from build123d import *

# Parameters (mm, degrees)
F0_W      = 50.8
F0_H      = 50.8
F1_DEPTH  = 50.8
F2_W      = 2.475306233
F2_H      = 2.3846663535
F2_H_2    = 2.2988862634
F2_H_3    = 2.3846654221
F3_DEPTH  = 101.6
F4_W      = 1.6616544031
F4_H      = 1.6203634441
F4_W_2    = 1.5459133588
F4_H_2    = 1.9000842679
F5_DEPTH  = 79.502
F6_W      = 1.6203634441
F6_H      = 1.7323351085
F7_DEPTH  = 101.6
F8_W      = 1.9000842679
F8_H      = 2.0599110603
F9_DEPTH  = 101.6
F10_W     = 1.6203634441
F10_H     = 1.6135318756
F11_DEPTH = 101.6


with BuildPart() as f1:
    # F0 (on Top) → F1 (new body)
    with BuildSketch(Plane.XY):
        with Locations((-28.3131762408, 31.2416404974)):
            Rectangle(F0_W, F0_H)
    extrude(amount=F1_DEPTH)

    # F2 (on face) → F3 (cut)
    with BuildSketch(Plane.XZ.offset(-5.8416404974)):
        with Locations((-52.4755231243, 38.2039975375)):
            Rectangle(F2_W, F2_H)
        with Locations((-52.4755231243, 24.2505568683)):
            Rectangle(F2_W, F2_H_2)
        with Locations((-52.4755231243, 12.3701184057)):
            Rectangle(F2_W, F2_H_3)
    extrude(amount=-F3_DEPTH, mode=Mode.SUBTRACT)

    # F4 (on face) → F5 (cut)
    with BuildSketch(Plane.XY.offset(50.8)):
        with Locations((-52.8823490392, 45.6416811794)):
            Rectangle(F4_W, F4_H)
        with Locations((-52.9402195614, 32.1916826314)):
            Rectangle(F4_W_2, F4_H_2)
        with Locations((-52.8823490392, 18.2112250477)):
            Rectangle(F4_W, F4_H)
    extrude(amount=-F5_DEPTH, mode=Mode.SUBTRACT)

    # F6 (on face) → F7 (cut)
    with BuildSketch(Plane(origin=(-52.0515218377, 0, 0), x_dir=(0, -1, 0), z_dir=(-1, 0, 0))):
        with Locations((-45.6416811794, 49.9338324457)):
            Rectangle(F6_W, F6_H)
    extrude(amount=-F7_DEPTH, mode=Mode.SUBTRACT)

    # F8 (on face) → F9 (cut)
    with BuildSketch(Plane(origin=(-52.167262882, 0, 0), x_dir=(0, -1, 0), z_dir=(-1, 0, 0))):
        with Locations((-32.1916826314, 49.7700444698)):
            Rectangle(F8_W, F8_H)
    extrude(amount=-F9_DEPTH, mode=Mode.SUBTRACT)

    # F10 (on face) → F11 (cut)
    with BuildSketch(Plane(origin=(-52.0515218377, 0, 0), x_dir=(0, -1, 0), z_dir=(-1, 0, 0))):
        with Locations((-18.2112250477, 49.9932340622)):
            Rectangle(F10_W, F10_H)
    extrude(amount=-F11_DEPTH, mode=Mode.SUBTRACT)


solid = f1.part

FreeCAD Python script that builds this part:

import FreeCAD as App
import Part
import Sketcher
from FreeCAD import Vector
Q = App.Units.Quantity

doc = App.newDocument("Part")
params = doc.addObject("Spreadsheet::Sheet", "Params")
for row, (alias, value) in enumerate([
    ("sketch1_width", "2 in"),
    ("pad1_length", "2 in"),
    ("pocket1_length", "4 in"),
    ("pocket2_length", "3.13 in"),
    ("pocket3_length", "4 in"),
    ("pocket4_length", "4 in"),
    ("pocket5_length", "4 in"),
], start=1):
    params.set(f"A{row}", alias)
    params.set(f"B{row}", "=" + value)
    params.setAlias(f"B{row}", alias)

body = doc.addObject("PartDesign::Body", "Body")

sketch1 = body.newObject("Sketcher::SketchObject", "Sketch")
sketch1.AttachmentSupport = (doc.getObject("XY_Plane"), [""])
sketch1.MapMode = "FlatFace"
sketch1.addGeometry([
    Part.LineSegment(Vector(-54, 57, 0), Vector(-54, 6, 0)),
    Part.LineSegment(Vector(-54, 6, 0), Vector(-3, 6, 0)),
    Part.LineSegment(Vector(-3, 6, 0), Vector(-3, 57, 0)),
    Part.LineSegment(Vector(-3, 57, 0), Vector(-54, 57, 0)),
], False)
sketch1.addConstraint([
    Sketcher.Constraint("Coincident", 0, 2, 1, 1),
    Sketcher.Constraint("Coincident", 1, 2, 2, 1),
    Sketcher.Constraint("Coincident", 2, 2, 3, 1),
    Sketcher.Constraint("Coincident", 3, 2, 0, 1),
    Sketcher.Constraint("Vertical", 0),
    Sketcher.Constraint("Horizontal", 1),
    Sketcher.Constraint("Vertical", 2),
    Sketcher.Constraint("Horizontal", 3),
    Sketcher.Constraint("Equal", 3, 0),
    Sketcher.Constraint("DistanceX", 1, 1, 1, 2, Q("2 in")),
    Sketcher.Constraint("DistanceY", -1, 1, 0, 2, 5.84164),
    Sketcher.Constraint("DistanceX", 0, 2, -1, 1, 53.713176),
])
sketch1.setExpression("Constraints[9]", "Params.sketch1_width")
pad1 = body.newObject("PartDesign::Pad", "Pad")
pad1.Profile = sketch1
pad1.setExpression("Length", "Params.pad1_length")

sketch2 = body.newObject("Sketcher::SketchObject", "Sketch001")
sketch2.AttachmentSupport = (doc.getObject("XZ_Plane"), [""])
sketch2.MapMode = "FlatFace"
sketch2.AttachmentOffset = App.Placement(Vector(0, 0, -5.84164), App.Rotation())
sketch2.addGeometry([
    Part.LineSegment(Vector(-53.7, 39.4, 0), Vector(-53.7, 37, 0)),
    Part.LineSegment(Vector(-53.7, 37, 0), Vector(-51.2, 37, 0)),
    Part.LineSegment(Vector(-51.2, 37, 0), Vector(-51.2, 39.4, 0)),
    Part.LineSegment(Vector(-51.2, 39.4, 0), Vector(-53.7, 39.4, 0)),
    Part.LineSegment(Vector(-53.7, 25.4, 0), Vector(-53.7, 23.1, 0)),
    Part.LineSegment(Vector(-53.7, 23.1, 0), Vector(-51.2, 23.1, 0)),
    Part.LineSegment(Vector(-51.2, 23.1, 0), Vector(-51.2, 25.4, 0)),
    Part.LineSegment(Vector(-51.2, 25.4, 0), Vector(-53.7, 25.4, 0)),
    Part.LineSegment(Vector(-53.7, 13.6, 0), Vector(-53.7, 11.2, 0)),
    Part.LineSegment(Vector(-53.7, 11.2, 0), Vector(-51.2, 11.2, 0)),
    Part.LineSegment(Vector(-51.2, 11.2, 0), Vector(-51.2, 13.6, 0)),
    Part.LineSegment(Vector(-51.2, 13.6, 0), Vector(-53.7, 13.6, 0)),
], False)
sketch2.addConstraint([
    Sketcher.Constraint("Coincident", 0, 2, 1, 1),
    Sketcher.Constraint("Coincident", 1, 2, 2, 1),
    Sketcher.Constraint("Coincident", 2, 2, 3, 1),
    Sketcher.Constraint("Coincident", 3, 2, 0, 1),
    Sketcher.Constraint("Coincident", 4, 2, 5, 1),
    Sketcher.Constraint("Coincident", 5, 2, 6, 1),
    Sketcher.Constraint("Coincident", 6, 2, 7, 1),
    Sketcher.Constraint("Coincident", 7, 2, 4, 1),
    Sketcher.Constraint("Coincident", 8, 2, 9, 1),
    Sketcher.Constraint("Coincident", 9, 2, 10, 1),
    Sketcher.Constraint("Coincident", 10, 2, 11, 1),
    Sketcher.Constraint("Coincident", 11, 2, 8, 1),
    Sketcher.Constraint("Vertical", 0),
    Sketcher.Constraint("Horizontal", 1),
    Sketcher.Constraint("Vertical", 2),
    Sketcher.Constraint("Horizontal", 3),
    Sketcher.Constraint("Vertical", 4),
    Sketcher.Constraint("Horizontal", 5),
    Sketcher.Constraint("Vertical", 6),
    Sketcher.Constraint("Horizontal", 7),
    Sketcher.Constraint("Vertical", 8),
    Sketcher.Constraint("Horizontal", 9),
    Sketcher.Constraint("Vertical", 10),
    Sketcher.Constraint("Horizontal", 11),
    Sketcher.Constraint("Vertical", 3, 2, 4, 2),
    Sketcher.Constraint("Vertical", 2, 2, 5, 2),
    Sketcher.Constraint("Vertical", 7, 2, 8, 2),
    Sketcher.Constraint("Vertical", 6, 2, 9, 2),
    Sketcher.Constraint("Equal", 2, 8),
    Sketcher.Constraint("DistanceY", -1, 1, 6, 2, Q("1 in")),
    Sketcher.Constraint("DistanceX", 1, 1, 1, 2, 2.475306),
    Sketcher.Constraint("DistanceY", 0, 2, 0, 1, 2.384666),
    Sketcher.Constraint("DistanceY", 4, 2, 4, 1, 2.298886),
    Sketcher.Constraint("DistanceX", 1, 2, -1, 1, 51.23787),
    Sketcher.Constraint("DistanceY", -1, 1, 2, 2, 39.396331),
    Sketcher.Constraint("DistanceY", -1, 1, 10, 2, 13.562451),
])
pocket1 = body.newObject("PartDesign::Pocket", "Pocket")
pocket1.Profile = sketch2
pocket1.setExpression("Length", "Params.pocket1_length")

sketch3 = body.newObject("Sketcher::SketchObject", "Sketch002")
sketch3.AttachmentSupport = (doc.getObject("XY_Plane"), [""])
sketch3.MapMode = "FlatFace"
sketch3.AttachmentOffset = App.Placement(Vector(0, 0, 2 * 25.4), App.Rotation())
sketch3.addGeometry([
    Part.LineSegment(Vector(-53.7, 46.5, 0), Vector(-53.7, 44.8, 0)),
    Part.LineSegment(Vector(-53.7, 44.8, 0), Vector(-52.1, 44.8, 0)),
    Part.LineSegment(Vector(-52.1, 44.8, 0), Vector(-52.1, 46.5, 0)),
    Part.LineSegment(Vector(-52.1, 46.5, 0), Vector(-53.7, 46.5, 0)),
    Part.LineSegment(Vector(-53.7, 33.1, 0), Vector(-53.7, 31.2, 0)),
    Part.LineSegment(Vector(-53.7, 31.2, 0), Vector(-52.2, 31.2, 0)),
    Part.LineSegment(Vector(-52.2, 31.2, 0), Vector(-52.2, 33.1, 0)),
    Part.LineSegment(Vector(-52.2, 33.1, 0), Vector(-53.7, 33.1, 0)),
    Part.LineSegment(Vector(-53.7, 19, 0), Vector(-53.7, 17.4, 0)),
    Part.LineSegment(Vector(-53.7, 17.4, 0), Vector(-52.1, 17.4, 0)),
    Part.LineSegment(Vector(-52.1, 17.4, 0), Vector(-52.1, 19, 0)),
    Part.LineSegment(Vector(-52.1, 19, 0), Vector(-53.7, 19, 0)),
], False)
sketch3.addConstraint([
    Sketcher.Constraint("Coincident", 0, 2, 1, 1),
    Sketcher.Constraint("Coincident", 1, 2, 2, 1),
    Sketcher.Constraint("Coincident", 2, 2, 3, 1),
    Sketcher.Constraint("Coincident", 3, 2, 0, 1),
    Sketcher.Constraint("Coincident", 4, 2, 5, 1),
    Sketcher.Constraint("Coincident", 5, 2, 6, 1),
    Sketcher.Constraint("Coincident", 6, 2, 7, 1),
    Sketcher.Constraint("Coincident", 7, 2, 4, 1),
    Sketcher.Constraint("Coincident", 8, 2, 9, 1),
    Sketcher.Constraint("Coincident", 9, 2, 10, 1),
    Sketcher.Constraint("Coincident", 10, 2, 11, 1),
    Sketcher.Constraint("Coincident", 11, 2, 8, 1),
    Sketcher.Constraint("Vertical", 0),
    Sketcher.Constraint("Horizontal", 1),
    Sketcher.Constraint("Vertical", 2),
    Sketcher.Constraint("Horizontal", 3),
    Sketcher.Constraint("Vertical", 4),
    Sketcher.Constraint("Horizontal", 5),
    Sketcher.Constraint("Vertical", 6),
    Sketcher.Constraint("Horizontal", 7),
    Sketcher.Constraint("Vertical", 8),
    Sketcher.Constraint("Horizontal", 9),
    Sketcher.Constraint("Vertical", 10),
    Sketcher.Constraint("Horizontal", 11),
    Sketcher.Constraint("Vertical", 3, 2, 4, 2),
    Sketcher.Constraint("Vertical", 7, 2, 8, 2),
    Sketcher.Constraint("Vertical", 2, 2, 9, 2),
    Sketcher.Constraint("Equal", 2, 8),
    Sketcher.Constraint("DistanceY", -1, 1, 0, 2, 44.831499),
    Sketcher.Constraint("DistanceX", 1, 1, 1, 2, 1.661654),
    Sketcher.Constraint("DistanceX", 5, 1, 5, 2, 1.545913),
    Sketcher.Constraint("DistanceY", 0, 2, 0, 1, 1.620363),
    Sketcher.Constraint("DistanceY", 4, 2, 4, 1, 1.900084),
    Sketcher.Constraint("DistanceX", 1, 2, -1, 1, 52.051522),
    Sketcher.Constraint("DistanceY", -1, 1, 4, 2, 31.24164),
    Sketcher.Constraint("DistanceY", 8, 2, 7, 2, 15.740681),
])
pocket2 = body.newObject("PartDesign::Pocket", "Pocket001")
pocket2.Profile = sketch3
pocket2.setExpression("Length", "Params.pocket2_length")

sketch4 = body.newObject("Sketcher::SketchObject", "Sketch003")
sketch4.AttachmentSupport = (doc.getObject("YZ_Plane"), [""])
sketch4.MapMode = "FlatFace"
sketch4.AttachmentOffset = App.Placement(Vector(0, 0, -52.051522), App.Rotation())
sketch4.addGeometry([
    Part.LineSegment(Vector(46.5, 50.8, 0), Vector(46.5, 49.1, 0)),
    Part.LineSegment(Vector(46.5, 49.1, 0), Vector(44.8, 49.1, 0)),
    Part.LineSegment(Vector(44.8, 49.1, 0), Vector(44.8, 50.8, 0)),
    Part.LineSegment(Vector(44.8, 50.8, 0), Vector(46.5, 50.8, 0)),
], False)
sketch4.addConstraint([
    Sketcher.Constraint("Coincident", 0, 2, 1, 1),
    Sketcher.Constraint("Coincident", 1, 2, 2, 1),
    Sketcher.Constraint("Coincident", 2, 2, 3, 1),
    Sketcher.Constraint("Coincident", 3, 2, 0, 1),
    Sketcher.Constraint("Vertical", 0),
    Sketcher.Constraint("Horizontal", 1),
    Sketcher.Constraint("Vertical", 2),
    Sketcher.Constraint("Horizontal", 3),
    Sketcher.Constraint("DistanceY", -1, 1, 2, 2, Q("2 in")),
    Sketcher.Constraint("DistanceX", -1, 1, 1, 2, 44.831499),
    Sketcher.Constraint("DistanceX", 1, 2, 1, 1, 1.620363),
    Sketcher.Constraint("DistanceY", 0, 2, 0, 1, 1.732335),
])
pocket3 = body.newObject("PartDesign::Pocket", "Pocket002")
pocket3.Profile = sketch4
pocket3.setExpression("Length", "Params.pocket3_length")
pocket3.Reversed = True

sketch5 = body.newObject("Sketcher::SketchObject", "Sketch004")
sketch5.AttachmentSupport = (doc.getObject("YZ_Plane"), [""])
sketch5.MapMode = "FlatFace"
sketch5.AttachmentOffset = App.Placement(Vector(0, 0, -52.167263), App.Rotation())
sketch5.addGeometry([
    Part.LineSegment(Vector(33.1, 50.8, 0), Vector(33.1, 48.7, 0)),
    Part.LineSegment(Vector(33.1, 48.7, 0), Vector(31.2, 48.7, 0)),
    Part.LineSegment(Vector(31.2, 48.7, 0), Vector(31.2, 50.8, 0)),
    Part.LineSegment(Vector(31.2, 50.8, 0), Vector(33.1, 50.8, 0)),
], False)
sketch5.addConstraint([
    Sketcher.Constraint("Coincident", 0, 2, 1, 1),
    Sketcher.Constraint("Coincident", 1, 2, 2, 1),
    Sketcher.Constraint("Coincident", 2, 2, 3, 1),
    Sketcher.Constraint("Coincident", 3, 2, 0, 1),
    Sketcher.Constraint("Vertical", 0),
    Sketcher.Constraint("Horizontal", 1),
    Sketcher.Constraint("Vertical", 2),
    Sketcher.Constraint("Horizontal", 3),
    Sketcher.Constraint("DistanceY", -1, 1, 2, 2, Q("2 in")),
    Sketcher.Constraint("DistanceY", 0, 2, 0, 1, 2.059911),
    Sketcher.Constraint("DistanceX", 1, 2, 1, 1, 1.900084),
    Sketcher.Constraint("DistanceX", -1, 1, 1, 2, 31.24164),
])
pocket4 = body.newObject("PartDesign::Pocket", "Pocket003")
pocket4.Profile = sketch5
pocket4.setExpression("Length", "Params.pocket4_length")
pocket4.Reversed = True

sketch6 = body.newObject("Sketcher::SketchObject", "Sketch005")
sketch6.AttachmentSupport = (doc.getObject("YZ_Plane"), [""])
sketch6.MapMode = "FlatFace"
sketch6.AttachmentOffset = App.Placement(Vector(0, 0, -52.051522), App.Rotation())
sketch6.addGeometry([
    Part.LineSegment(Vector(19, 50.8, 0), Vector(19, 49.2, 0)),
    Part.LineSegment(Vector(19, 49.2, 0), Vector(17.4, 49.2, 0)),
    Part.LineSegment(Vector(17.4, 49.2, 0), Vector(17.4, 50.8, 0)),
    Part.LineSegment(Vector(17.4, 50.8, 0), Vector(19, 50.8, 0)),
], False)
sketch6.addConstraint([
    Sketcher.Constraint("Coincident", 0, 2, 1, 1),
    Sketcher.Constraint("Coincident", 1, 2, 2, 1),
    Sketcher.Constraint("Coincident", 2, 2, 3, 1),
    Sketcher.Constraint("Coincident", 3, 2, 0, 1),
    Sketcher.Constraint("Vertical", 0),
    Sketcher.Constraint("Horizontal", 1),
    Sketcher.Constraint("Vertical", 2),
    Sketcher.Constraint("Horizontal", 3),
    Sketcher.Constraint("DistanceY", -1, 1, 2, 2, Q("2 in")),
    Sketcher.Constraint("DistanceY", 0, 2, 0, 1, 1.613532),
    Sketcher.Constraint("DistanceX", 1, 2, 1, 1, 1.620363),
    Sketcher.Constraint("DistanceX", -1, 1, 0, 2, 19.021407),
])
pocket5 = body.newObject("PartDesign::Pocket", "Pocket004")
pocket5.Profile = sketch6
pocket5.setExpression("Length", "Params.pocket5_length")
pocket5.Reversed = True

doc.recompute()
